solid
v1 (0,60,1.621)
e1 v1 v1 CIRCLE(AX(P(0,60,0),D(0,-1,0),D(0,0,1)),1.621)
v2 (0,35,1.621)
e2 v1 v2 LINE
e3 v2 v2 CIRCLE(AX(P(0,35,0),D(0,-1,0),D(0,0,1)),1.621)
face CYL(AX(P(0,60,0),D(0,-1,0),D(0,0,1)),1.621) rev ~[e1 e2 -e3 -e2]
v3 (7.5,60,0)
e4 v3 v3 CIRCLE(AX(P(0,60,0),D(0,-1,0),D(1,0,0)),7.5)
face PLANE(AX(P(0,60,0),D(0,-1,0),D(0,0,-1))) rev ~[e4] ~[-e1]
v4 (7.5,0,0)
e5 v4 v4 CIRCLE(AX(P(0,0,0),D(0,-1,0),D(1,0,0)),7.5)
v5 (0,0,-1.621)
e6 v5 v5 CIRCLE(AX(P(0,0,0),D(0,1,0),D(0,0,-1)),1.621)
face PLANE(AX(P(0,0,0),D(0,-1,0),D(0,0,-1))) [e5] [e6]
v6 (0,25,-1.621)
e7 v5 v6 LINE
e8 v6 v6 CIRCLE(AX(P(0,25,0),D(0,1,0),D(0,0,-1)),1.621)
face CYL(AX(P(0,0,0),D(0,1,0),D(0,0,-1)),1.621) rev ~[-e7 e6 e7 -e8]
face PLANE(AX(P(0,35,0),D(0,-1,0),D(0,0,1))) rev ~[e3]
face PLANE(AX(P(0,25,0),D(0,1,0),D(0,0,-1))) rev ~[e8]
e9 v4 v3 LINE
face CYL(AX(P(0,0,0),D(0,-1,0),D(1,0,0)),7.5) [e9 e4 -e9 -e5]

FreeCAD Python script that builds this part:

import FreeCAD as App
import Part
import Sketcher
Q = App.Units.Quantity

doc = App.newDocument("Part")
body = doc.addObject("PartDesign::Body", "Body")

sketch1 = body.newObject("Sketcher::SketchObject", "Sketch")
sketch1.AttachmentSupport = (doc.getObject("XZ_Plane"), [""])
sketch1.MapMode = "FlatFace"
sketch1.addGeometry(Part.Circle(App.Vector(0, 0, 0), App.Vector(0, 0, 1), 8), False)
sketch1.addConstraint([
    Sketcher.Constraint("Coincident", 0, 3, -1, 1),
    Sketcher.Constraint("Diameter", 0, Q("15 mm")),
])
pad1 = body.newObject("PartDesign::Pad", "Pad")
pad1.Profile = sketch1
pad1.Length = 60
pad1.Reversed = True

sketch2 = body.newObject("Sketcher::SketchObject", "Sketch001")
sketch2.AttachmentSupport = (doc.getObject("XZ_Plane"), [""])
sketch2.MapMode = "FlatFace"
sketch2.addGeometry(Part.Circle(App.Vector(0, 0, 0), App.Vector(0, 0, 1), 1.6), False)
sketch2.addConstraint([
    Sketcher.Constraint("Coincident", 0, 3, -1, 1),
    Sketcher.Constraint("Diameter", 0, Q("3.242 mm")),
])
doc.recompute()
hole = body.newObject("PartDesign::Hole", "Hole")
hole.Profile = sketch2
hole.ThreadType = "None"
hole.Diameter = 3.242
hole.DepthType = "Dimension"
hole.Depth = 25
hole.DrillPoint = "Flat"

sketch3 = body.newObject("Sketcher::SketchObject", "Sketch002")
sketch3.AttachmentSupport = (doc.getObject("XZ_Plane"), [""])
sketch3.MapMode = "FlatFace"
sketch3.AttachmentOffset = App.Placement(App.Vector(0, 0, -60), App.Rotation())
sketch3.addGeometry(Part.Circle(App.Vector(0, 0, 0), App.Vector(0, 0, 1), 1.6), False)
sketch3.addConstraint([
    Sketcher.Constraint("Coincident", 0, 3, -1, 1),
    Sketcher.Constraint("Diameter", 0, Q("3.242 mm")),
])
doc.recompute()
hole2 = body.newObject("PartDesign::Hole", "Hole001")
hole2.Profile = sketch3
hole2.ThreadType = "None"
hole2.Diameter = 3.242
hole2.DepthType = "Dimension"
hole2.Depth = 25
hole2.DrillPoint = "Flat"
hole2.Reversed = True

doc.recompute()
